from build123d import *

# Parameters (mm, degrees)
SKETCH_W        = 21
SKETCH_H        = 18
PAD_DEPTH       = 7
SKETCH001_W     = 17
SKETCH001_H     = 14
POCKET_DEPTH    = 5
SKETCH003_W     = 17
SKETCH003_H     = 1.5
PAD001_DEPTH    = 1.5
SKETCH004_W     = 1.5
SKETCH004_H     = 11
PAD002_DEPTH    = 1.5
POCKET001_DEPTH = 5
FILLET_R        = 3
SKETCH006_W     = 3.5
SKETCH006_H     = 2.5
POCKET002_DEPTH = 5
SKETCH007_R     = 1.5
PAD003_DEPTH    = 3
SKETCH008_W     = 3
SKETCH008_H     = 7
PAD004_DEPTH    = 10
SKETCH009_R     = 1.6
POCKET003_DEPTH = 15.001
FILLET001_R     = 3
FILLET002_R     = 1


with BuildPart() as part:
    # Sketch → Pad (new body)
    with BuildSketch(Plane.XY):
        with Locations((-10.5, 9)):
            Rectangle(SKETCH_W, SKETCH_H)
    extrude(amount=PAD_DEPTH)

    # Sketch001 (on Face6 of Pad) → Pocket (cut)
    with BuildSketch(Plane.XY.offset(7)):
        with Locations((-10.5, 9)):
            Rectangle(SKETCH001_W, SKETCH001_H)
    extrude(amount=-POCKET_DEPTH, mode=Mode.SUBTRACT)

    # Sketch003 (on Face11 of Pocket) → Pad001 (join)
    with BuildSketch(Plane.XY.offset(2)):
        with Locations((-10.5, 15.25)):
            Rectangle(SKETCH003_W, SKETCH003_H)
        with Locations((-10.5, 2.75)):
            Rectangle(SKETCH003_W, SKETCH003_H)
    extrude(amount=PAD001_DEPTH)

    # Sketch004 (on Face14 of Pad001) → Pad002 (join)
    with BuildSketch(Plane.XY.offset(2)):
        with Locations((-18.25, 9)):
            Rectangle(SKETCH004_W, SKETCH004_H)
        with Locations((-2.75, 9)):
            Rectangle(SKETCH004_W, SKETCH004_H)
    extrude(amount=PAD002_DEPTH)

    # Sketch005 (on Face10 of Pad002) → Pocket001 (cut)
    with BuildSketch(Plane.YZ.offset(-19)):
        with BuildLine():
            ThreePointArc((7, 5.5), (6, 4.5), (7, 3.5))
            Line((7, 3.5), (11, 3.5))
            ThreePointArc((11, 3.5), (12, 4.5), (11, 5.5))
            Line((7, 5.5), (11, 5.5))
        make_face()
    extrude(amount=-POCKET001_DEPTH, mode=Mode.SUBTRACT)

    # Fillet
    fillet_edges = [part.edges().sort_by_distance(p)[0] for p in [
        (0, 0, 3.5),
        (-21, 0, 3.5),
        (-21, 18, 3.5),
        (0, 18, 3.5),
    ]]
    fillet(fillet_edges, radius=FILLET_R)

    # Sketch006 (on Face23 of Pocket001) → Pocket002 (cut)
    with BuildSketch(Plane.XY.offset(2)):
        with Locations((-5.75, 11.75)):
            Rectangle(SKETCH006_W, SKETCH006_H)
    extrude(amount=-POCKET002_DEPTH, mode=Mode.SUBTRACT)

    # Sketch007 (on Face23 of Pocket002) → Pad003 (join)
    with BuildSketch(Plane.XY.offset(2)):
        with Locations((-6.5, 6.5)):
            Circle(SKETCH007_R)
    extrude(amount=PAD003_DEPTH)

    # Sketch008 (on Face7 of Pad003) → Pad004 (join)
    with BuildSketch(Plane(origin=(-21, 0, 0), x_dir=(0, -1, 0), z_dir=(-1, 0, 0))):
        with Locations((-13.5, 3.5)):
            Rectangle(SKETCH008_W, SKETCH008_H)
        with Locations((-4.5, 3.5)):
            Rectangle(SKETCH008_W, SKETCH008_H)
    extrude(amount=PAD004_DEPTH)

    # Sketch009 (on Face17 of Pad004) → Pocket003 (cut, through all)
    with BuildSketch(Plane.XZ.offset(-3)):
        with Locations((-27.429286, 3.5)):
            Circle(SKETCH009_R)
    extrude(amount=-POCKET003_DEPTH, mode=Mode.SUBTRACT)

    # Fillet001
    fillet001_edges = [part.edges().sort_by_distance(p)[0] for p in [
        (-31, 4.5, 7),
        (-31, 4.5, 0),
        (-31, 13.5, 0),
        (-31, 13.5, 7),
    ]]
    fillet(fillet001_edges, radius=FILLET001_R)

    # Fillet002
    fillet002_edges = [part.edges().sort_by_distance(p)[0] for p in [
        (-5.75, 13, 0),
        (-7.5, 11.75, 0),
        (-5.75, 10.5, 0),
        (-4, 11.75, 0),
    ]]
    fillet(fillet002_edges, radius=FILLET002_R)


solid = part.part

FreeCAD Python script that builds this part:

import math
import FreeCAD as App
import Part
import Sketcher
Q = App.Units.Quantity


def edges_at(feature, points):
    """Names of the edges that pass closest to the given points."""
    edges = feature.Shape.Edges
    near = lambda p: min(range(len(edges)), key=lambda i: edges[i].distToShape(Part.Vertex(*p))[0])
    return sorted({f"Edge{near(p) + 1}" for p in points})

doc = App.newDocument("Part")
body = doc.addObject("PartDesign::Body", "Body")

# Sketch on XY plane
sketch1 = body.newObject("Sketcher::SketchObject", "Sketch")
sketch1.AttachmentSupport = (doc.getObject("XY_Plane"), [""])
sketch1.MapMode = "FlatFace"
sketch1.addGeometry(Part.LineSegment(App.Vector(-21, 18, 0), App.Vector(-21, 0, 0)), False)
sketch1.addGeometry(Part.LineSegment(App.Vector(-21, 0, 0), App.Vector(0, 0, 0)), False)
sketch1.addGeometry(Part.LineSegment(App.Vector(0, 0, 0), App.Vector(0, 18, 0)), False)
sketch1.addGeometry(Part.LineSegment(App.Vector(0, 18, 0), App.Vector(-21, 18, 0)), False)
sketch1.addConstraint(Sketcher.Constraint("Coincident", 0, 2, 1, 1))
sketch1.addConstraint(Sketcher.Constraint("Coincident", 1, 2, 2, 1))
sketch1.addConstraint(Sketcher.Constraint("Coincident", 2, 2, 3, 1))
sketch1.addConstraint(Sketcher.Constraint("Coincident", 3, 2, 0, 1))
sketch1.addConstraint(Sketcher.Constraint("Vertical", 0))
sketch1.addConstraint(Sketcher.Constraint("Horizontal", 1))
sketch1.addConstraint(Sketcher.Constraint("Vertical", 2))
sketch1.addConstraint(Sketcher.Constraint("Horizontal", 3))
sketch1.addConstraint(Sketcher.Constraint("Coincident", 1, 2, -1, 1))
sketch1.addConstraint(Sketcher.Constraint("DistanceX", 1, 1, 1, 2, Q("21 mm")))
sketch1.addConstraint(Sketcher.Constraint("DistanceY", 0, 2, 0, 1, Q("18 mm")))
pad1 = body.newObject("PartDesign::Pad", "Pad")
pad1.Profile = sketch1
pad1.Length = 7

# Sketch on XY plane
sketch2 = body.newObject("Sketcher::SketchObject", "Sketch001")
sketch2.AttachmentSupport = (doc.getObject("XY_Plane"), [""])
sketch2.MapMode = "FlatFace"
sketch2.AttachmentOffset = App.Placement(App.Vector(0, 0, 7), App.Rotation())
sketch2.addGeometry(Part.LineSegment(App.Vector(-19, 16, 0), App.Vector(-19, 2, 0)), False)
sketch2.addGeometry(Part.LineSegment(App.Vector(-19, 2, 0), App.Vector(-2, 2, 0)), False)
sketch2.addGeometry(Part.LineSegment(App.Vector(-2, 2, 0), App.Vector(-2, 16, 0)), False)
sketch2.addGeometry(Part.LineSegment(App.Vector(-2, 16, 0), App.Vector(-19, 16, 0)), False)
sketch2.addConstraint(Sketcher.Constraint("Coincident", 0, 2, 1, 1))
sketch2.addConstraint(Sketcher.Constraint("Coincident", 1, 2, 2, 1))
sketch2.addConstraint(Sketcher.Constraint("Coincident", 2, 2, 3, 1))
sketch2.addConstraint(Sketcher.Constraint("Coincident", 3, 2, 0, 1))
sketch2.addConstraint(Sketcher.Constraint("Vertical", 0))
sketch2.addConstraint(Sketcher.Constraint("Horizontal", 1))
sketch2.addConstraint(Sketcher.Constraint("Vertical", 2))
sketch2.addConstraint(Sketcher.Constraint("Horizontal", 3))
sketch2.addConstraint(Sketcher.Constraint("DistanceX", 1, 1, 1, 2, Q("17 mm")))
sketch2.addConstraint(Sketcher.Constraint("DistanceY", 0, 2, 0, 1, Q("14 mm")))
sketch2.addConstraint(Sketcher.Constraint("DistanceX", 0, 2, -1, 1, Q("19 mm")))
sketch2.addConstraint(Sketcher.Constraint("DistanceY", -1, 1, 0, 2, Q("2 mm")))
pocket1 = body.newObject("PartDesign::Pocket", "Pocket")
pocket1.Profile = sketch2
pocket1.Length = 5

# Sketch on XY plane
sketch3 = body.newObject("Sketcher::SketchObject", "Sketch002")
sketch3.AttachmentSupport = (doc.getObject("XY_Plane"), [""])
sketch3.MapMode = "FlatFace"
sketch3.AttachmentOffset = App.Placement(App.Vector(0, 0, 2), App.Rotation())
sketch3.addGeometry(Part.LineSegment(App.Vector(-19, 16, 0), App.Vector(-19, 14.5, 0)), False)
sketch3.addGeometry(Part.LineSegment(App.Vector(-19, 14.5, 0), App.Vector(-2, 14.5, 0)), False)
sketch3.addGeometry(Part.LineSegment(App.Vector(-2, 14.5, 0), App.Vector(-2, 16, 0)), False)
sketch3.addGeometry(Part.LineSegment(App.Vector(-2, 16, 0), App.Vector(-19, 16, 0)), False)
sketch3.addGeometry(Part.LineSegment(App.Vector(-19, 3.5, 0), App.Vector(-19, 2, 0)), False)
sketch3.addGeometry(Part.LineSegment(App.Vector(-19, 2, 0), App.Vector(-2, 2, 0)), False)
sketch3.addGeometry(Part.LineSegment(App.Vector(-2, 2, 0), App.Vector(-2, 3.5, 0)), False)
sketch3.addGeometry(Part.LineSegment(App.Vector(-2, 3.5, 0), App.Vector(-19, 3.5, 0)), False)
sketch3.addConstraint(Sketcher.Constraint("Coincident", 0, 2, 1, 1))
sketch3.addConstraint(Sketcher.Constraint("Coincident", 1, 2, 2, 1))
sketch3.addConstraint(Sketcher.Constraint("Coincident", 2, 2, 3, 1))
sketch3.addConstraint(Sketcher.Constraint("Coincident", 3, 2, 0, 1))
sketch3.addConstraint(Sketcher.Constraint("Coincident", 4, 2, 5, 1))
sketch3.addConstraint(Sketcher.Constraint("Coincident", 5, 2, 6, 1))
sketch3.addConstraint(Sketcher.Constraint("Coincident", 6, 2, 7, 1))
sketch3.addConstraint(Sketcher.Constraint("Coincident", 7, 2, 4, 1))
sketch3.addConstraint(Sketcher.Constraint("Vertical", 0))
sketch3.addConstraint(Sketcher.Constraint("Horizontal", 1))
sketch3.addConstraint(Sketcher.Constraint("Vertical", 2))
sketch3.addConstraint(Sketcher.Constraint("Horizontal", 3))
sketch3.addConstraint(Sketcher.Constraint("Vertical", 4))
sketch3.addConstraint(Sketcher.Constraint("Horizontal", 5))
sketch3.addConstraint(Sketcher.Constraint("Vertical", 6))
sketch3.addConstraint(Sketcher.Constraint("Horizontal", 7))
sketch3.addConstraint(Sketcher.Constraint("Vertical", 3, 2, 4, 2))
sketch3.addConstraint(Sketcher.Constraint("Vertical", 2, 2, 5, 2))
sketch3.addConstraint(Sketcher.Constraint("Equal", 2, 4))
sketch3.addConstraint(Sketcher.Constraint("DistanceX", 1, 1, 1, 2, Q("17 mm")))
sketch3.addConstraint(Sketcher.Constraint("DistanceY", 0, 2, 0, 1, Q("1.5 mm")))
sketch3.addConstraint(Sketcher.Constraint("DistanceX", 0, 2, -1, 1, Q("19 mm")))
sketch3.addConstraint(Sketcher.Constraint("DistanceY", -1, 1, 2, 2, Q("16 mm")))
sketch3.addConstraint(Sketcher.Constraint("DistanceY", -1, 1, 4, 2, Q("2 mm")))
pad2 = body.newObject("PartDesign::Pad", "Pad001")
pad2.Profile = sketch3
pad2.Length = 1.5

# Sketch on XY plane
sketch4 = body.newObject("Sketcher::SketchObject", "Sketch003")
sketch4.AttachmentSupport = (doc.getObject("XY_Plane"), [""])
sketch4.MapMode = "FlatFace"
sketch4.AttachmentOffset = App.Placement(App.Vector(0, 0, 2), App.Rotation())
sketch4.addGeometry(Part.LineSegment(App.Vector(-19, 14.5, 0), App.Vector(-19, 3.5, 0)), False)
sketch4.addGeometry(Part.LineSegment(App.Vector(-19, 3.5, 0), App.Vector(-17.5, 3.5, 0)), False)
sketch4.addGeometry(Part.LineSegment(App.Vector(-17.5, 3.5, 0), App.Vector(-17.5, 14.5, 0)), False)
sketch4.addGeometry(Part.LineSegment(App.Vector(-17.5, 14.5, 0), App.Vector(-19, 14.5, 0)), False)
sketch4.addGeometry(Part.LineSegment(App.Vector(-3.5, 14.5, 0), App.Vector(-3.5, 3.5, 0)), False)
sketch4.addGeometry(Part.LineSegment(App.Vector(-3.5, 3.5, 0), App.Vector(-2, 3.5, 0)), False)
sketch4.addGeometry(Part.LineSegment(App.Vector(-2, 3.5, 0), App.Vector(-2, 14.5, 0)), False)
sketch4.addGeometry(Part.LineSegment(App.Vector(-2, 14.5, 0), App.Vector(-3.5, 14.5, 0)), False)
sketch4.addConstraint(Sketcher.Constraint("Coincident", 0, 2, 1, 1))
sketch4.addConstraint(Sketcher.Constraint("Coincident", 1, 2, 2, 1))
sketch4.addConstraint(Sketcher.Constraint("Coincident", 2, 2, 3, 1))
sketch4.addConstraint(Sketcher.Constraint("Coincident", 3, 2, 0, 1))
sketch4.addConstraint(Sketcher.Constraint("Coincident", 4, 2, 5, 1))
sketch4.addConstraint(Sketcher.Constraint("Coincident", 5, 2, 6, 1))
sketch4.addConstraint(Sketcher.Constraint("Coincident", 6, 2, 7, 1))
sketch4.addConstraint(Sketcher.Constraint("Coincident", 7, 2, 4, 1))
sketch4.addConstraint(Sketcher.Constraint("Vertical", 0))
sketch4.addConstraint(Sketcher.Constraint("Horizontal", 1))
sketch4.addConstraint(Sketcher.Constraint("Vertical", 2))
sketch4.addConstraint(Sketcher.Constraint("Horizontal", 3))
sketch4.addConstraint(Sketcher.Constraint("Vertical", 4))
sketch4.addConstraint(Sketcher.Constraint("Horizontal", 5))
sketch4.addConstraint(Sketcher.Constraint("Vertical", 6))
sketch4.addConstraint(Sketcher.Constraint("Horizontal", 7))
sketch4.addConstraint(Sketcher.Constraint("Horizontal", 1, 2, 4, 2))
sketch4.addConstraint(Sketcher.Constraint("Horizontal", 3, 2, 6, 2))
sketch4.addConstraint(Sketcher.Constraint("Equal", 3, 5))
sketch4.addConstraint(Sketcher.Constraint("DistanceY", 0, 2, 0, 1, Q("11 mm")))
sketch4.addConstraint(Sketcher.Constraint("DistanceX", 1, 1, 1, 2, Q("1.5 mm")))
sketch4.addConstraint(Sketcher.Constraint("DistanceX", 0, 2, -1, 1, Q("19 mm")))
sketch4.addConstraint(Sketcher.Constraint("DistanceX", 5, 2, -1, 1, Q("2 mm")))
sketch4.addConstraint(Sketcher.Constraint("DistanceY", -1, 1, 0, 2, Q("3.5 mm")))
pad3 = body.newObject("PartDesign::Pad", "Pad002")
pad3.Profile = sketch4
pad3.Length = 1.5

# Sketch on YZ plane
sketch5 = body.newObject("Sketcher::SketchObject", "Sketch004")
sketch5.AttachmentSupport = (doc.getObject("YZ_Plane"), [""])
sketch5.MapMode = "FlatFace"
sketch5.AttachmentOffset = App.Placement(App.Vector(0, 0, -19), App.Rotation())
sketch5.addGeometry(Part.ArcOfCircle(Part.Circle(App.Vector(7, 4.5, 0), App.Vector(0, 0, 1), 1), math.radians(90), math.radians(270)), False)
sketch5.addGeometry(Part.LineSegment(App.Vector(7, 3.5, 0), App.Vector(11, 3.5, 0)), False)
sketch5.addGeometry(Part.ArcOfCircle(Part.Circle(App.Vector(11, 4.5, 0), App.Vector(0, 0, 1), 1), math.radians(-90), math.radians(90)), False)
sketch5.addGeometry(Part.LineSegment(App.Vector(11, 5.5, 0), App.Vector(7, 5.5, 0)), False)
sketch5.addConstraint(Sketcher.Constraint("Tangent", 0, 2, 1, 1))
sketch5.addConstraint(Sketcher.Constraint("Tangent", 1, 2, 2, 1))
sketch5.addConstraint(Sketcher.Constraint("Tangent", 2, 2, 3, 1))
sketch5.addConstraint(Sketcher.Constraint("Tangent", 3, 2, 0, 1))
sketch5.addConstraint(Sketcher.Constraint("Horizontal", 1))
sketch5.addConstraint(Sketcher.Constraint("Horizontal", 3))
sketch5.addConstraint(Sketcher.Constraint("Radius", 0, Q("1 mm")))
sketch5.addConstraint(Sketcher.Constraint("DistanceX", 1, 1, 1, 2, Q("4 mm")))
sketch5.addConstraint(Sketcher.Constraint("DistanceX", -1, 1, 0, 3, Q("7 mm")))
sketch5.addConstraint(Sketcher.Constraint("DistanceY", -1, 1, 0, 3, Q("4.5 mm")))
pocket2 = body.newObject("PartDesign::Pocket", "Pocket001")
pocket2.Profile = sketch5
pocket2.Length = 5
doc.recompute()

fillet = body.newObject("PartDesign::Fillet", "Fillet")
fillet.Base = (pocket2, edges_at(pocket2, [
    (0, 0, 3.5),
    (-21, 0, 3.5),
    (-21, 18, 3.5),
    (0, 18, 3.5),
]))
fillet.Radius = 3

# Sketch on XY plane
sketch6 = body.newObject("Sketcher::SketchObject", "Sketch005")
sketch6.AttachmentSupport = (doc.getObject("XY_Plane"), [""])
sketch6.MapMode = "FlatFace"
sketch6.AttachmentOffset = App.Placement(App.Vector(0, 0, 2), App.Rotation())
sketch6.addGeometry(Part.LineSegment(App.Vector(-7.5, 13, 0), App.Vector(-7.5, 10.5, 0)), False)
sketch6.addGeometry(Part.LineSegment(App.Vector(-7.5, 10.5, 0), App.Vector(-4, 10.5, 0)), False)
sketch6.addGeometry(Part.LineSegment(App.Vector(-4, 10.5, 0), App.Vector(-4, 13, 0)), False)
sketch6.addGeometry(Part.LineSegment(App.Vector(-4, 13, 0), App.Vector(-7.5, 13, 0)), False)
sketch6.addConstraint(Sketcher.Constraint("Coincident", 0, 2, 1, 1))
sketch6.addConstraint(Sketcher.Constraint("Coincident", 1, 2, 2, 1))
sketch6.addConstraint(Sketcher.Constraint("Coincident", 2, 2, 3, 1))
sketch6.addConstraint(Sketcher.Constraint("Coincident", 3, 2, 0, 1))
sketch6.addConstraint(Sketcher.Constraint("Vertical", 0))
sketch6.addConstraint(Sketcher.Constraint("Horizontal", 1))
sketch6.addConstraint(Sketcher.Constraint("Vertical", 2))
sketch6.addConstraint(Sketcher.Constraint("Horizontal", 3))
sketch6.addConstraint(Sketcher.Constraint("DistanceX", 1, 1, 1, 2, Q("3.5 mm")))
sketch6.addConstraint(Sketcher.Constraint("DistanceY", 0, 2, 0, 1, Q("2.5 mm")))
sketch6.addConstraint(Sketcher.Constraint("DistanceX", 1, 2, -1, 1, Q("4 mm")))
sketch6.addConstraint(Sketcher.Constraint("DistanceY", -1, 1, 2, 2, Q("13 mm")))
pocket3 = body.newObject("PartDesign::Pocket", "Pocket002")
pocket3.Profile = sketch6
pocket3.Length = 5

# Sketch on XY plane
sketch7 = body.newObject("Sketcher::SketchObject", "Sketch006")
sketch7.AttachmentSupport = (doc.getObject("XY_Plane"), [""])
sketch7.MapMode = "FlatFace"
sketch7.AttachmentOffset = App.Placement(App.Vector(0, 0, 2), App.Rotation())
sketch7.addGeometry(Part.Circle(App.Vector(-6.5, 6.5, 0), App.Vector(0, 0, 1), 1.5), False)
sketch7.addConstraint(Sketcher.Constraint("Diameter", 0, Q("3 mm")))
sketch7.addConstraint(Sketcher.Constraint("DistanceX", 0, 3, -1, 1, Q("6.5 mm")))
sketch7.addConstraint(Sketcher.Constraint("DistanceY", -1, 1, 0, 3, Q("6.5 mm")))
pad4 = body.newObject("PartDesign::Pad", "Pad003")
pad4.Profile = sketch7
pad4.Length = 3

# Sketch on YZ plane
sketch8 = body.newObject("Sketcher::SketchObject", "Sketch007")
sketch8.AttachmentSupport = (doc.getObject("YZ_Plane"), [""])
sketch8.MapMode = "FlatFace"
sketch8.AttachmentOffset = App.Placement(App.Vector(0, 0, -21), App.Rotation())
sketch8.addGeometry(Part.LineSegment(App.Vector(15, 7, 0), App.Vector(15, 0, 0)), False)
sketch8.addGeometry(Part.LineSegment(App.Vector(15, 0, 0), App.Vector(12, 0, 0)), False)
sketch8.addGeometry(Part.LineSegment(App.Vector(12, 0, 0), App.Vector(12, 7, 0)), False)
sketch8.addGeometry(Part.LineSegment(App.Vector(12, 7, 0), App.Vector(15, 7, 0)), False)
sketch8.addGeometry(Part.LineSegment(App.Vector(6, 7, 0), App.Vector(6, 0, 0)), False)
sketch8.addGeometry(Part.LineSegment(App.Vector(6, 0, 0), App.Vector(3, 0, 0)), False)
sketch8.addGeometry(Part.LineSegment(App.Vector(3, 0, 0), App.Vector(3, 7, 0)), False)
sketch8.addGeometry(Part.LineSegment(App.Vector(3, 7, 0), App.Vector(6, 7, 0)), False)
sketch8.addConstraint(Sketcher.Constraint("Coincident", 0, 2, 1, 1))
sketch8.addConstraint(Sketcher.Constraint("Coincident", 1, 2, 2, 1))
sketch8.addConstraint(Sketcher.Constraint("Coincident", 2, 2, 3, 1))
sketch8.addConstraint(Sketcher.Constraint("Coincident", 3, 2, 0, 1))
sketch8.addConstraint(Sketcher.Constraint("Coincident", 4, 2, 5, 1))
sketch8.addConstraint(Sketcher.Constraint("Coincident", 5, 2, 6, 1))
sketch8.addConstraint(Sketcher.Constraint("Coincident", 6, 2, 7, 1))
sketch8.addConstraint(Sketcher.Constraint("Coincident", 7, 2, 4, 1))
sketch8.addConstraint(Sketcher.Constraint("Vertical", 0))
sketch8.addConstraint(Sketcher.Constraint("Horizontal", 1))
sketch8.addConstraint(Sketcher.Constraint("Vertical", 2))
sketch8.addConstraint(Sketcher.Constraint("Horizontal", 3))
sketch8.addConstraint(Sketcher.Constraint("Vertical", 4))
sketch8.addConstraint(Sketcher.Constraint("Horizontal", 5))
sketch8.addConstraint(Sketcher.Constraint("Vertical", 6))
sketch8.addConstraint(Sketcher.Constraint("Horizontal", 7))
sketch8.addConstraint(Sketcher.Constraint("PointOnObject", 0, 2, -1))
sketch8.addConstraint(Sketcher.Constraint("PointOnObject", 4, 2, -1))
sketch8.addConstraint(Sketcher.Constraint("Horizontal", 3, 2, 6, 2))
sketch8.addConstraint(Sketcher.Constraint("Equal", 3, 5))
sketch8.addConstraint(Sketcher.Constraint("DistanceX", 1, 2, 1, 1, Q("3 mm")))
sketch8.addConstraint(Sketcher.Constraint("DistanceY", 0, 2, 0, 1, Q("7 mm")))
sketch8.addConstraint(Sketcher.Constraint("DistanceX", -1, 1, 0, 2, Q("15 mm")))
sketch8.addConstraint(Sketcher.Constraint("DistanceX", -1, 1, 4, 2, Q("6 mm")))
pad5 = body.newObject("PartDesign::Pad", "Pad004")
pad5.Profile = sketch8
pad5.Length = 10
pad5.Reversed = True

# Sketch on XZ plane
sketch9 = body.newObject("Sketcher::SketchObject", "Sketch008")
sketch9.AttachmentSupport = (doc.getObject("XZ_Plane"), [""])
sketch9.MapMode = "FlatFace"
sketch9.AttachmentOffset = App.Placement(App.Vector(0, 0, -3), App.Rotation())
sketch9.addGeometry(Part.Circle(App.Vector(-27.4, 3.5, 0), App.Vector(0, 0, 1), 1.6), False)
sketch9.addConstraint(Sketcher.Constraint("Diameter", 0, Q("3.2 mm")))
sketch9.addConstraint(Sketcher.Constraint("DistanceY", -1, 1, 0, 3, Q("3.5 mm")))
sketch9.addConstraint(Sketcher.Constraint("DistanceX", 0, 3, -1, 1, Q("27.429286 mm")))
pocket4 = body.newObject("PartDesign::Pocket", "Pocket003")
pocket4.Profile = sketch9
pocket4.Type = "ThroughAll"
doc.recompute()

fillet2 = body.newObject("PartDesign::Fillet", "Fillet001")
fillet2.Base = (pocket4, edges_at(pocket4, [
    (-31, 4.5, 7),
    (-31, 4.5, 0),
    (-31, 13.5, 0),
    (-31, 13.5, 7),
]))
fillet2.Radius = 3
doc.recompute()

fillet3 = body.newObject("PartDesign::Fillet", "Fillet002")
fillet3.Base = (fillet2, edges_at(fillet2, [
    (-5.75, 13, 0),
    (-7.5, 11.75, 0),
    (-5.75, 10.5, 0),
    (-4, 11.75, 0),
]))
fillet3.Radius = 1

doc.recompute()
